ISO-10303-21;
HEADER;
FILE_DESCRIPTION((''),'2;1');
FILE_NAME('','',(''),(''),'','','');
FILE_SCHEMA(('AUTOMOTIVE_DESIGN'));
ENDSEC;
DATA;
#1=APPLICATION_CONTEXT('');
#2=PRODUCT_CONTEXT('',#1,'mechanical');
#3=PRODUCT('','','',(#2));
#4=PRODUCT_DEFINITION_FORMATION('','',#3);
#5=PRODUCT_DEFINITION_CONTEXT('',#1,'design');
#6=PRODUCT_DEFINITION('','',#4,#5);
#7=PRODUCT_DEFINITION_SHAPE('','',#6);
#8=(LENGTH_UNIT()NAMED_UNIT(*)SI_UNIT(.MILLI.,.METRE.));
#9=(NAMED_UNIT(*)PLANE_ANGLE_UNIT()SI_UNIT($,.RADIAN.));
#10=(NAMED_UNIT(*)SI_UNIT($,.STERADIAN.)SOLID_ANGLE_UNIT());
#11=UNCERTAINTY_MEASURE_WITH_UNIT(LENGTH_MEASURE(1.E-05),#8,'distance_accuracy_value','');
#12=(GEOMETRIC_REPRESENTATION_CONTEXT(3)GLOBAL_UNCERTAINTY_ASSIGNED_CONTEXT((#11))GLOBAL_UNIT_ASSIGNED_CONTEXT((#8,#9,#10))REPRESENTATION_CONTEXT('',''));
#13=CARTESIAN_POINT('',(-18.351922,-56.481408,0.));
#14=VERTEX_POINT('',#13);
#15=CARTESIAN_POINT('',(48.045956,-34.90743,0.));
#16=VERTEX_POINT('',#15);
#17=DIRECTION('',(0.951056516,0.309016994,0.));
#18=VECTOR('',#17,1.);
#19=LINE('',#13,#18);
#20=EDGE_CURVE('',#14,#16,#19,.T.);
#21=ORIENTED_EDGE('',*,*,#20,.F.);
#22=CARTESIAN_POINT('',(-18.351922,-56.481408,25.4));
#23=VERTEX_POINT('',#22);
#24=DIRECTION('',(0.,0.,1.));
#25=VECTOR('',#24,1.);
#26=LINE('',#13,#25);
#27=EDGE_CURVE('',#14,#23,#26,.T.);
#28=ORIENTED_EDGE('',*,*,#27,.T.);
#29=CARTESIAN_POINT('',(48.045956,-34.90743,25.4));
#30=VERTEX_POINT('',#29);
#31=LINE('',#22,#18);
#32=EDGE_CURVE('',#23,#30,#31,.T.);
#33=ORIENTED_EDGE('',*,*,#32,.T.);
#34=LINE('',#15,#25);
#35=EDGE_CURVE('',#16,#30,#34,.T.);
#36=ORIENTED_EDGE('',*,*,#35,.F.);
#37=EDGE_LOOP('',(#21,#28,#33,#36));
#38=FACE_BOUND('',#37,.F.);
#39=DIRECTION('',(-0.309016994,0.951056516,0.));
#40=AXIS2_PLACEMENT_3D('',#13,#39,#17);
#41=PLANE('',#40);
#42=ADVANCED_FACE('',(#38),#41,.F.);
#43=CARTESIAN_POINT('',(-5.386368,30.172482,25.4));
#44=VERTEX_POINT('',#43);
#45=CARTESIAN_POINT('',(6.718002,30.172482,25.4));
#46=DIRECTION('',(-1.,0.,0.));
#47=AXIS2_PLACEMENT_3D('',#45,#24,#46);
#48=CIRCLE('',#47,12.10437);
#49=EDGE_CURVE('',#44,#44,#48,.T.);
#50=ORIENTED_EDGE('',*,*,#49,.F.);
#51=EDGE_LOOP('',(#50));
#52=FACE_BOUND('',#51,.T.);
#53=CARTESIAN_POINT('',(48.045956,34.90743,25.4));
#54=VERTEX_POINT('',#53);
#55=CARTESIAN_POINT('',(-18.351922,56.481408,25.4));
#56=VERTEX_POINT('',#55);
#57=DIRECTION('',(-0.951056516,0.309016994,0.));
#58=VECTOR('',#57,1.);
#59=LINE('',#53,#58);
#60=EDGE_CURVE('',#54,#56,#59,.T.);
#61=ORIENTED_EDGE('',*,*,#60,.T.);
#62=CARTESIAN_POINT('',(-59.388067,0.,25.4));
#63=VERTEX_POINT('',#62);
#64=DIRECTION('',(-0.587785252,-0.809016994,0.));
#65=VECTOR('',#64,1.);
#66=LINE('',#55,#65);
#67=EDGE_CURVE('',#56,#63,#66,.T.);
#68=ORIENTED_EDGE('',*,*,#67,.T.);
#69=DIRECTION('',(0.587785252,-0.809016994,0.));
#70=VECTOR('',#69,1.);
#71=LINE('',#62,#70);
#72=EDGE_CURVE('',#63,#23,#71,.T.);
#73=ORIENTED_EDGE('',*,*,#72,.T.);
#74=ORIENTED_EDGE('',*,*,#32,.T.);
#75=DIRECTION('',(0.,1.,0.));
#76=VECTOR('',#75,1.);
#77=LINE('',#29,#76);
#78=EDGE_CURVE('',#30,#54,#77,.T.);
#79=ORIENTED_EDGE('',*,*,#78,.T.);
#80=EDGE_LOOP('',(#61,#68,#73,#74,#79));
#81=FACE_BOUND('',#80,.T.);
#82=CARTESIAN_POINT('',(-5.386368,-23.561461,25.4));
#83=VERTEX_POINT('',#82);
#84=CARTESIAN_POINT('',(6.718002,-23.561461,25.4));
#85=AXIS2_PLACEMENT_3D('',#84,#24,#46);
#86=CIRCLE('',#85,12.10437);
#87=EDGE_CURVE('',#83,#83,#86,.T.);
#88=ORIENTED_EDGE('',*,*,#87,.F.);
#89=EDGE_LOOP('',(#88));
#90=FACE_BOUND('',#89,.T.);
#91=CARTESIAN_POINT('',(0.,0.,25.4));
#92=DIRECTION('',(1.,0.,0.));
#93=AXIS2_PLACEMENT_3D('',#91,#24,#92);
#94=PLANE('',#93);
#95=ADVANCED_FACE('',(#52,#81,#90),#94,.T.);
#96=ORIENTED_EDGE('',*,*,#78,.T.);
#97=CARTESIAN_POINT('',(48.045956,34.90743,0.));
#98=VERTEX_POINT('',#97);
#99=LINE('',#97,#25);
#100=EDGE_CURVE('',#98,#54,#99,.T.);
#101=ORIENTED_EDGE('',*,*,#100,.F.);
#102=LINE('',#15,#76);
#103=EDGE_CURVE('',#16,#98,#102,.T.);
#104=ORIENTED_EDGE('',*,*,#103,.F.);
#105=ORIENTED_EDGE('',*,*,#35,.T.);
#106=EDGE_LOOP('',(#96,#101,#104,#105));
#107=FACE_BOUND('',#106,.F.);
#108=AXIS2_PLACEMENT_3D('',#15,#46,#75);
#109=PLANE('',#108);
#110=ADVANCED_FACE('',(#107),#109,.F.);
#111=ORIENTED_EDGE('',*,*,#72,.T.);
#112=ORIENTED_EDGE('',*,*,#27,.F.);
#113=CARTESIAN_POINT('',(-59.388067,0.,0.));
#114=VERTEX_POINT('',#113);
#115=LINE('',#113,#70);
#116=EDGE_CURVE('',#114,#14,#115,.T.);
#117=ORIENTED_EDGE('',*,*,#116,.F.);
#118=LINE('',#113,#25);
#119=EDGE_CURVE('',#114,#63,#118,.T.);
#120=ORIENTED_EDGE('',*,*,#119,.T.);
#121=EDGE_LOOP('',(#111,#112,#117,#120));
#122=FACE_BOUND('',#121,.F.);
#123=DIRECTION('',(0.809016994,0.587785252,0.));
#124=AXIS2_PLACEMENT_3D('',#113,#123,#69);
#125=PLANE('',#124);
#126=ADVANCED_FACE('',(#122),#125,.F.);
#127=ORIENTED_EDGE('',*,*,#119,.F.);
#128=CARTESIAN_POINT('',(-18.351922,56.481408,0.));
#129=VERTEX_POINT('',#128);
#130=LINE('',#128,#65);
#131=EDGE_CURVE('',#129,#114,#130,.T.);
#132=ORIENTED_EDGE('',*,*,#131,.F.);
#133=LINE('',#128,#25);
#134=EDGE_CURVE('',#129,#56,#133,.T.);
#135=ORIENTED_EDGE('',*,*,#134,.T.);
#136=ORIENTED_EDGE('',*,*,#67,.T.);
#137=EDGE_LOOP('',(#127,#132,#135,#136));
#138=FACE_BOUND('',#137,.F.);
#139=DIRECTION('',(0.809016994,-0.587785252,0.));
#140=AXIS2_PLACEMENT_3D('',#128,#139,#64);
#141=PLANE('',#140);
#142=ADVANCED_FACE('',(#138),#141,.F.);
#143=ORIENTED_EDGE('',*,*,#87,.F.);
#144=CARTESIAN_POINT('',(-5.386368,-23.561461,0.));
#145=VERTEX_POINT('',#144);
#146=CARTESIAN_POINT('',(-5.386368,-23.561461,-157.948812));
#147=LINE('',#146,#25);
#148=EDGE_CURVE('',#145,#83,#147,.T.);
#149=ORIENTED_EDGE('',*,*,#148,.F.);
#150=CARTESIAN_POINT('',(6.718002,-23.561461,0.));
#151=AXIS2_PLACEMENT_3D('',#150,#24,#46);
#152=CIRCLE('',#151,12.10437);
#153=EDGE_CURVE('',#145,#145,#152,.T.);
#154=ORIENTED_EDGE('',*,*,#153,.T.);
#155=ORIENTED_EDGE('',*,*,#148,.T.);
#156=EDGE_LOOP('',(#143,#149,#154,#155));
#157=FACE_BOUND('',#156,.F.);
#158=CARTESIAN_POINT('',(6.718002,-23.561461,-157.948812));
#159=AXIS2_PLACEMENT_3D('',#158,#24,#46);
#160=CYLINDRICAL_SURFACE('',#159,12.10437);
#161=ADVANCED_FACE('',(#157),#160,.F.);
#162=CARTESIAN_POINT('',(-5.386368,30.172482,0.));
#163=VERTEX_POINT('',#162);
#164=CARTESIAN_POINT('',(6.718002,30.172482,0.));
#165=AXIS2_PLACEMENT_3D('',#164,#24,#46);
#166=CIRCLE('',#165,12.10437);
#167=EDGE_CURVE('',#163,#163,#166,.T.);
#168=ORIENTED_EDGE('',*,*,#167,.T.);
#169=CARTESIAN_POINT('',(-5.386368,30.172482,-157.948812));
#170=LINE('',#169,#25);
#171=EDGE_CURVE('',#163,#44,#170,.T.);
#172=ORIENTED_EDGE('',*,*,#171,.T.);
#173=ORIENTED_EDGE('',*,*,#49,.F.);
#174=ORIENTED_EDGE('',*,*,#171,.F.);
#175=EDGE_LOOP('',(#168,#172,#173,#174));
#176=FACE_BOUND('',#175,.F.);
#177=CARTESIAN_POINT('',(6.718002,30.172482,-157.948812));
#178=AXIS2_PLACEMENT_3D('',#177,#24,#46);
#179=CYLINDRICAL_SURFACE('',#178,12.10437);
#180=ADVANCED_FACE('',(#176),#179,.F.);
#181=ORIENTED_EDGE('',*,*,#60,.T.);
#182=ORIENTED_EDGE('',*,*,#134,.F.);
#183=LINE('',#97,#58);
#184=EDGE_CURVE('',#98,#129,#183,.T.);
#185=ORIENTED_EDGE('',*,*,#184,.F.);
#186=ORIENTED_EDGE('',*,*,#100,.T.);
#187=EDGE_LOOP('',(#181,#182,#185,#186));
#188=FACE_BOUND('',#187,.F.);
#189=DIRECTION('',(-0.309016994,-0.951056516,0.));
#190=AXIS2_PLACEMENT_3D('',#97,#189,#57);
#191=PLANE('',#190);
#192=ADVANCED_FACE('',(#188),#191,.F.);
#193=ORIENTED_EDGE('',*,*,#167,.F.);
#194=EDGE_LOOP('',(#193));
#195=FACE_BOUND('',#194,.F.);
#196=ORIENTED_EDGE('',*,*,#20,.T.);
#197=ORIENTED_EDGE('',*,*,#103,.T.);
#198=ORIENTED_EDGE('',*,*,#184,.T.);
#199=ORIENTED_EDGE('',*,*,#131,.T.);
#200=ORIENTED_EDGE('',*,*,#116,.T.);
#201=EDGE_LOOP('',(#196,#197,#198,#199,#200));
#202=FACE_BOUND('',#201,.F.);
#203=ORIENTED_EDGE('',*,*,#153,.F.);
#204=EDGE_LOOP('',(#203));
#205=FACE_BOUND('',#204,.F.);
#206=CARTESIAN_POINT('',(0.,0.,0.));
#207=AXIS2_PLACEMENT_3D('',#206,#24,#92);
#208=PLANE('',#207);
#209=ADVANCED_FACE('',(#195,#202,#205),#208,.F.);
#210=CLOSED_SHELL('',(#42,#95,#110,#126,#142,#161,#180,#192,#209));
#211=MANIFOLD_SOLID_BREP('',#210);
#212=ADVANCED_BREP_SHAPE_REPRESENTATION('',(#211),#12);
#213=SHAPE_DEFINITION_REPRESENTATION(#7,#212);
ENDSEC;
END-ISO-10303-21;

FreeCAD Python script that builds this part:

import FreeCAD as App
import Part
import Sketcher
Q = App.Units.Quantity

doc = App.newDocument("Part")
params = doc.addObject("Spreadsheet::Sheet", "Params")
for row, (alias, value) in enumerate([
    ("pad1_length", "1 in"),
    ("hole_diameter", "0.9531 in"),
], start=1):
    params.set(f"A{row}", alias)
    params.set(f"B{row}", "=" + value)
    params.setAlias(f"B{row}", alias)

body = doc.addObject("PartDesign::Body", "Body")

sketch1 = body.newObject("Sketcher::SketchObject", "Sketch")
sketch1.AttachmentSupport = (doc.getObject("XY_Plane"), [""])
sketch1.MapMode = "FlatFace"
sketch1.addGeometry(Part.LineSegment(App.Vector(48.045956, -34.90743, 0), App.Vector(48.045956, 34.90743, 0)), False)
sketch1.addGeometry(Part.LineSegment(App.Vector(48.045956, 34.90743, 0), App.Vector(-18.351922, 56.481408, 0)), False)
sketch1.addGeometry(Part.LineSegment(App.Vector(-18.351922, 56.481408, 0), App.Vector(-59.388067, 0, 0)), False)
sketch1.addGeometry(Part.LineSegment(App.Vector(-59.388067, 0, 0), App.Vector(-18.351922, -56.481408, 0)), False)
sketch1.addGeometry(Part.LineSegment(App.Vector(-18.351922, -56.481408, 0), App.Vector(48.045956, -34.90743, 0)), False)
sketch1.addConstraint(Sketcher.Constraint("Coincident", 0, 2, 1, 1))
sketch1.addConstraint(Sketcher.Constraint("Coincident", 1, 2, 2, 1))
sketch1.addConstraint(Sketcher.Constraint("Coincident", 2, 2, 3, 1))
sketch1.addConstraint(Sketcher.Constraint("Coincident", 3, 2, 4, 1))
sketch1.addConstraint(Sketcher.Constraint("Coincident", 4, 2, 0, 1))
sketch1.addConstraint(Sketcher.Constraint("Vertical", 0))
sketch1.addConstraint(Sketcher.Constraint("Symmetric", 1, 2, 3, 2, -1))
sketch1.addConstraint(Sketcher.Constraint("PointOnObject", 2, 2, -1))
sketch1.addConstraint(Sketcher.Constraint("Equal", 1, 2))
sketch1.addConstraint(Sketcher.Constraint("Equal", 3, 4))
sketch1.addConstraint(Sketcher.Constraint("Angle", 1, Q("162 deg")))
sketch1.addConstraint(Sketcher.Constraint("Angle", 2, Q("-126 deg")))
sketch1.addConstraint(Sketcher.Constraint("DistanceY", 0, 1, 0, 2, 69.81486))
sketch1.addConstraint(Sketcher.Constraint("DistanceX", -1, 1, 0, 2, 48.045956))
pad1 = body.newObject("PartDesign::Pad", "Pad")
pad1.Profile = sketch1
pad1.setExpression("Length", "Params.pad1_length")

sketch2 = body.newObject("Sketcher::SketchObject", "Sketch001")
sketch2.AttachmentSupport = (doc.getObject("XY_Plane"), [""])
sketch2.MapMode = "FlatFace"
sketch2.addGeometry(Part.Circle(App.Vector(6.718002, -23.561461, 0), App.Vector(0, 0, 1), 12.10437), False)
sketch2.addGeometry(Part.Circle(App.Vector(6.718002, 30.172482, 0), App.Vector(0, 0, 1), 12.10437), False)
sketch2.addConstraint(Sketcher.Constraint("Equal", 0, 1))
sketch2.addConstraint(Sketcher.Constraint("Vertical", 0, 3, 1, 3))
sketch2.addConstraint(Sketcher.Constraint("Diameter", 0, Q("0.9531 in")))
sketch2.addConstraint(Sketcher.Constraint("DistanceX", -1, 1, 0, 3, 6.718002))
sketch2.addConstraint(Sketcher.Constraint("DistanceY", 0, 3, -1, 1, 23.561461))
sketch2.addConstraint(Sketcher.Constraint("DistanceY", -1, 1, 1, 3, 30.172482))
doc.recompute()
hole = body.newObject("PartDesign::Hole", "Hole")
hole.Profile = sketch2
hole.ThreadType = "None"
hole.setExpression("Diameter", "Params.hole_diameter")
hole.DepthType = "ThroughAll"
hole.Reversed = True

doc.recompute()
